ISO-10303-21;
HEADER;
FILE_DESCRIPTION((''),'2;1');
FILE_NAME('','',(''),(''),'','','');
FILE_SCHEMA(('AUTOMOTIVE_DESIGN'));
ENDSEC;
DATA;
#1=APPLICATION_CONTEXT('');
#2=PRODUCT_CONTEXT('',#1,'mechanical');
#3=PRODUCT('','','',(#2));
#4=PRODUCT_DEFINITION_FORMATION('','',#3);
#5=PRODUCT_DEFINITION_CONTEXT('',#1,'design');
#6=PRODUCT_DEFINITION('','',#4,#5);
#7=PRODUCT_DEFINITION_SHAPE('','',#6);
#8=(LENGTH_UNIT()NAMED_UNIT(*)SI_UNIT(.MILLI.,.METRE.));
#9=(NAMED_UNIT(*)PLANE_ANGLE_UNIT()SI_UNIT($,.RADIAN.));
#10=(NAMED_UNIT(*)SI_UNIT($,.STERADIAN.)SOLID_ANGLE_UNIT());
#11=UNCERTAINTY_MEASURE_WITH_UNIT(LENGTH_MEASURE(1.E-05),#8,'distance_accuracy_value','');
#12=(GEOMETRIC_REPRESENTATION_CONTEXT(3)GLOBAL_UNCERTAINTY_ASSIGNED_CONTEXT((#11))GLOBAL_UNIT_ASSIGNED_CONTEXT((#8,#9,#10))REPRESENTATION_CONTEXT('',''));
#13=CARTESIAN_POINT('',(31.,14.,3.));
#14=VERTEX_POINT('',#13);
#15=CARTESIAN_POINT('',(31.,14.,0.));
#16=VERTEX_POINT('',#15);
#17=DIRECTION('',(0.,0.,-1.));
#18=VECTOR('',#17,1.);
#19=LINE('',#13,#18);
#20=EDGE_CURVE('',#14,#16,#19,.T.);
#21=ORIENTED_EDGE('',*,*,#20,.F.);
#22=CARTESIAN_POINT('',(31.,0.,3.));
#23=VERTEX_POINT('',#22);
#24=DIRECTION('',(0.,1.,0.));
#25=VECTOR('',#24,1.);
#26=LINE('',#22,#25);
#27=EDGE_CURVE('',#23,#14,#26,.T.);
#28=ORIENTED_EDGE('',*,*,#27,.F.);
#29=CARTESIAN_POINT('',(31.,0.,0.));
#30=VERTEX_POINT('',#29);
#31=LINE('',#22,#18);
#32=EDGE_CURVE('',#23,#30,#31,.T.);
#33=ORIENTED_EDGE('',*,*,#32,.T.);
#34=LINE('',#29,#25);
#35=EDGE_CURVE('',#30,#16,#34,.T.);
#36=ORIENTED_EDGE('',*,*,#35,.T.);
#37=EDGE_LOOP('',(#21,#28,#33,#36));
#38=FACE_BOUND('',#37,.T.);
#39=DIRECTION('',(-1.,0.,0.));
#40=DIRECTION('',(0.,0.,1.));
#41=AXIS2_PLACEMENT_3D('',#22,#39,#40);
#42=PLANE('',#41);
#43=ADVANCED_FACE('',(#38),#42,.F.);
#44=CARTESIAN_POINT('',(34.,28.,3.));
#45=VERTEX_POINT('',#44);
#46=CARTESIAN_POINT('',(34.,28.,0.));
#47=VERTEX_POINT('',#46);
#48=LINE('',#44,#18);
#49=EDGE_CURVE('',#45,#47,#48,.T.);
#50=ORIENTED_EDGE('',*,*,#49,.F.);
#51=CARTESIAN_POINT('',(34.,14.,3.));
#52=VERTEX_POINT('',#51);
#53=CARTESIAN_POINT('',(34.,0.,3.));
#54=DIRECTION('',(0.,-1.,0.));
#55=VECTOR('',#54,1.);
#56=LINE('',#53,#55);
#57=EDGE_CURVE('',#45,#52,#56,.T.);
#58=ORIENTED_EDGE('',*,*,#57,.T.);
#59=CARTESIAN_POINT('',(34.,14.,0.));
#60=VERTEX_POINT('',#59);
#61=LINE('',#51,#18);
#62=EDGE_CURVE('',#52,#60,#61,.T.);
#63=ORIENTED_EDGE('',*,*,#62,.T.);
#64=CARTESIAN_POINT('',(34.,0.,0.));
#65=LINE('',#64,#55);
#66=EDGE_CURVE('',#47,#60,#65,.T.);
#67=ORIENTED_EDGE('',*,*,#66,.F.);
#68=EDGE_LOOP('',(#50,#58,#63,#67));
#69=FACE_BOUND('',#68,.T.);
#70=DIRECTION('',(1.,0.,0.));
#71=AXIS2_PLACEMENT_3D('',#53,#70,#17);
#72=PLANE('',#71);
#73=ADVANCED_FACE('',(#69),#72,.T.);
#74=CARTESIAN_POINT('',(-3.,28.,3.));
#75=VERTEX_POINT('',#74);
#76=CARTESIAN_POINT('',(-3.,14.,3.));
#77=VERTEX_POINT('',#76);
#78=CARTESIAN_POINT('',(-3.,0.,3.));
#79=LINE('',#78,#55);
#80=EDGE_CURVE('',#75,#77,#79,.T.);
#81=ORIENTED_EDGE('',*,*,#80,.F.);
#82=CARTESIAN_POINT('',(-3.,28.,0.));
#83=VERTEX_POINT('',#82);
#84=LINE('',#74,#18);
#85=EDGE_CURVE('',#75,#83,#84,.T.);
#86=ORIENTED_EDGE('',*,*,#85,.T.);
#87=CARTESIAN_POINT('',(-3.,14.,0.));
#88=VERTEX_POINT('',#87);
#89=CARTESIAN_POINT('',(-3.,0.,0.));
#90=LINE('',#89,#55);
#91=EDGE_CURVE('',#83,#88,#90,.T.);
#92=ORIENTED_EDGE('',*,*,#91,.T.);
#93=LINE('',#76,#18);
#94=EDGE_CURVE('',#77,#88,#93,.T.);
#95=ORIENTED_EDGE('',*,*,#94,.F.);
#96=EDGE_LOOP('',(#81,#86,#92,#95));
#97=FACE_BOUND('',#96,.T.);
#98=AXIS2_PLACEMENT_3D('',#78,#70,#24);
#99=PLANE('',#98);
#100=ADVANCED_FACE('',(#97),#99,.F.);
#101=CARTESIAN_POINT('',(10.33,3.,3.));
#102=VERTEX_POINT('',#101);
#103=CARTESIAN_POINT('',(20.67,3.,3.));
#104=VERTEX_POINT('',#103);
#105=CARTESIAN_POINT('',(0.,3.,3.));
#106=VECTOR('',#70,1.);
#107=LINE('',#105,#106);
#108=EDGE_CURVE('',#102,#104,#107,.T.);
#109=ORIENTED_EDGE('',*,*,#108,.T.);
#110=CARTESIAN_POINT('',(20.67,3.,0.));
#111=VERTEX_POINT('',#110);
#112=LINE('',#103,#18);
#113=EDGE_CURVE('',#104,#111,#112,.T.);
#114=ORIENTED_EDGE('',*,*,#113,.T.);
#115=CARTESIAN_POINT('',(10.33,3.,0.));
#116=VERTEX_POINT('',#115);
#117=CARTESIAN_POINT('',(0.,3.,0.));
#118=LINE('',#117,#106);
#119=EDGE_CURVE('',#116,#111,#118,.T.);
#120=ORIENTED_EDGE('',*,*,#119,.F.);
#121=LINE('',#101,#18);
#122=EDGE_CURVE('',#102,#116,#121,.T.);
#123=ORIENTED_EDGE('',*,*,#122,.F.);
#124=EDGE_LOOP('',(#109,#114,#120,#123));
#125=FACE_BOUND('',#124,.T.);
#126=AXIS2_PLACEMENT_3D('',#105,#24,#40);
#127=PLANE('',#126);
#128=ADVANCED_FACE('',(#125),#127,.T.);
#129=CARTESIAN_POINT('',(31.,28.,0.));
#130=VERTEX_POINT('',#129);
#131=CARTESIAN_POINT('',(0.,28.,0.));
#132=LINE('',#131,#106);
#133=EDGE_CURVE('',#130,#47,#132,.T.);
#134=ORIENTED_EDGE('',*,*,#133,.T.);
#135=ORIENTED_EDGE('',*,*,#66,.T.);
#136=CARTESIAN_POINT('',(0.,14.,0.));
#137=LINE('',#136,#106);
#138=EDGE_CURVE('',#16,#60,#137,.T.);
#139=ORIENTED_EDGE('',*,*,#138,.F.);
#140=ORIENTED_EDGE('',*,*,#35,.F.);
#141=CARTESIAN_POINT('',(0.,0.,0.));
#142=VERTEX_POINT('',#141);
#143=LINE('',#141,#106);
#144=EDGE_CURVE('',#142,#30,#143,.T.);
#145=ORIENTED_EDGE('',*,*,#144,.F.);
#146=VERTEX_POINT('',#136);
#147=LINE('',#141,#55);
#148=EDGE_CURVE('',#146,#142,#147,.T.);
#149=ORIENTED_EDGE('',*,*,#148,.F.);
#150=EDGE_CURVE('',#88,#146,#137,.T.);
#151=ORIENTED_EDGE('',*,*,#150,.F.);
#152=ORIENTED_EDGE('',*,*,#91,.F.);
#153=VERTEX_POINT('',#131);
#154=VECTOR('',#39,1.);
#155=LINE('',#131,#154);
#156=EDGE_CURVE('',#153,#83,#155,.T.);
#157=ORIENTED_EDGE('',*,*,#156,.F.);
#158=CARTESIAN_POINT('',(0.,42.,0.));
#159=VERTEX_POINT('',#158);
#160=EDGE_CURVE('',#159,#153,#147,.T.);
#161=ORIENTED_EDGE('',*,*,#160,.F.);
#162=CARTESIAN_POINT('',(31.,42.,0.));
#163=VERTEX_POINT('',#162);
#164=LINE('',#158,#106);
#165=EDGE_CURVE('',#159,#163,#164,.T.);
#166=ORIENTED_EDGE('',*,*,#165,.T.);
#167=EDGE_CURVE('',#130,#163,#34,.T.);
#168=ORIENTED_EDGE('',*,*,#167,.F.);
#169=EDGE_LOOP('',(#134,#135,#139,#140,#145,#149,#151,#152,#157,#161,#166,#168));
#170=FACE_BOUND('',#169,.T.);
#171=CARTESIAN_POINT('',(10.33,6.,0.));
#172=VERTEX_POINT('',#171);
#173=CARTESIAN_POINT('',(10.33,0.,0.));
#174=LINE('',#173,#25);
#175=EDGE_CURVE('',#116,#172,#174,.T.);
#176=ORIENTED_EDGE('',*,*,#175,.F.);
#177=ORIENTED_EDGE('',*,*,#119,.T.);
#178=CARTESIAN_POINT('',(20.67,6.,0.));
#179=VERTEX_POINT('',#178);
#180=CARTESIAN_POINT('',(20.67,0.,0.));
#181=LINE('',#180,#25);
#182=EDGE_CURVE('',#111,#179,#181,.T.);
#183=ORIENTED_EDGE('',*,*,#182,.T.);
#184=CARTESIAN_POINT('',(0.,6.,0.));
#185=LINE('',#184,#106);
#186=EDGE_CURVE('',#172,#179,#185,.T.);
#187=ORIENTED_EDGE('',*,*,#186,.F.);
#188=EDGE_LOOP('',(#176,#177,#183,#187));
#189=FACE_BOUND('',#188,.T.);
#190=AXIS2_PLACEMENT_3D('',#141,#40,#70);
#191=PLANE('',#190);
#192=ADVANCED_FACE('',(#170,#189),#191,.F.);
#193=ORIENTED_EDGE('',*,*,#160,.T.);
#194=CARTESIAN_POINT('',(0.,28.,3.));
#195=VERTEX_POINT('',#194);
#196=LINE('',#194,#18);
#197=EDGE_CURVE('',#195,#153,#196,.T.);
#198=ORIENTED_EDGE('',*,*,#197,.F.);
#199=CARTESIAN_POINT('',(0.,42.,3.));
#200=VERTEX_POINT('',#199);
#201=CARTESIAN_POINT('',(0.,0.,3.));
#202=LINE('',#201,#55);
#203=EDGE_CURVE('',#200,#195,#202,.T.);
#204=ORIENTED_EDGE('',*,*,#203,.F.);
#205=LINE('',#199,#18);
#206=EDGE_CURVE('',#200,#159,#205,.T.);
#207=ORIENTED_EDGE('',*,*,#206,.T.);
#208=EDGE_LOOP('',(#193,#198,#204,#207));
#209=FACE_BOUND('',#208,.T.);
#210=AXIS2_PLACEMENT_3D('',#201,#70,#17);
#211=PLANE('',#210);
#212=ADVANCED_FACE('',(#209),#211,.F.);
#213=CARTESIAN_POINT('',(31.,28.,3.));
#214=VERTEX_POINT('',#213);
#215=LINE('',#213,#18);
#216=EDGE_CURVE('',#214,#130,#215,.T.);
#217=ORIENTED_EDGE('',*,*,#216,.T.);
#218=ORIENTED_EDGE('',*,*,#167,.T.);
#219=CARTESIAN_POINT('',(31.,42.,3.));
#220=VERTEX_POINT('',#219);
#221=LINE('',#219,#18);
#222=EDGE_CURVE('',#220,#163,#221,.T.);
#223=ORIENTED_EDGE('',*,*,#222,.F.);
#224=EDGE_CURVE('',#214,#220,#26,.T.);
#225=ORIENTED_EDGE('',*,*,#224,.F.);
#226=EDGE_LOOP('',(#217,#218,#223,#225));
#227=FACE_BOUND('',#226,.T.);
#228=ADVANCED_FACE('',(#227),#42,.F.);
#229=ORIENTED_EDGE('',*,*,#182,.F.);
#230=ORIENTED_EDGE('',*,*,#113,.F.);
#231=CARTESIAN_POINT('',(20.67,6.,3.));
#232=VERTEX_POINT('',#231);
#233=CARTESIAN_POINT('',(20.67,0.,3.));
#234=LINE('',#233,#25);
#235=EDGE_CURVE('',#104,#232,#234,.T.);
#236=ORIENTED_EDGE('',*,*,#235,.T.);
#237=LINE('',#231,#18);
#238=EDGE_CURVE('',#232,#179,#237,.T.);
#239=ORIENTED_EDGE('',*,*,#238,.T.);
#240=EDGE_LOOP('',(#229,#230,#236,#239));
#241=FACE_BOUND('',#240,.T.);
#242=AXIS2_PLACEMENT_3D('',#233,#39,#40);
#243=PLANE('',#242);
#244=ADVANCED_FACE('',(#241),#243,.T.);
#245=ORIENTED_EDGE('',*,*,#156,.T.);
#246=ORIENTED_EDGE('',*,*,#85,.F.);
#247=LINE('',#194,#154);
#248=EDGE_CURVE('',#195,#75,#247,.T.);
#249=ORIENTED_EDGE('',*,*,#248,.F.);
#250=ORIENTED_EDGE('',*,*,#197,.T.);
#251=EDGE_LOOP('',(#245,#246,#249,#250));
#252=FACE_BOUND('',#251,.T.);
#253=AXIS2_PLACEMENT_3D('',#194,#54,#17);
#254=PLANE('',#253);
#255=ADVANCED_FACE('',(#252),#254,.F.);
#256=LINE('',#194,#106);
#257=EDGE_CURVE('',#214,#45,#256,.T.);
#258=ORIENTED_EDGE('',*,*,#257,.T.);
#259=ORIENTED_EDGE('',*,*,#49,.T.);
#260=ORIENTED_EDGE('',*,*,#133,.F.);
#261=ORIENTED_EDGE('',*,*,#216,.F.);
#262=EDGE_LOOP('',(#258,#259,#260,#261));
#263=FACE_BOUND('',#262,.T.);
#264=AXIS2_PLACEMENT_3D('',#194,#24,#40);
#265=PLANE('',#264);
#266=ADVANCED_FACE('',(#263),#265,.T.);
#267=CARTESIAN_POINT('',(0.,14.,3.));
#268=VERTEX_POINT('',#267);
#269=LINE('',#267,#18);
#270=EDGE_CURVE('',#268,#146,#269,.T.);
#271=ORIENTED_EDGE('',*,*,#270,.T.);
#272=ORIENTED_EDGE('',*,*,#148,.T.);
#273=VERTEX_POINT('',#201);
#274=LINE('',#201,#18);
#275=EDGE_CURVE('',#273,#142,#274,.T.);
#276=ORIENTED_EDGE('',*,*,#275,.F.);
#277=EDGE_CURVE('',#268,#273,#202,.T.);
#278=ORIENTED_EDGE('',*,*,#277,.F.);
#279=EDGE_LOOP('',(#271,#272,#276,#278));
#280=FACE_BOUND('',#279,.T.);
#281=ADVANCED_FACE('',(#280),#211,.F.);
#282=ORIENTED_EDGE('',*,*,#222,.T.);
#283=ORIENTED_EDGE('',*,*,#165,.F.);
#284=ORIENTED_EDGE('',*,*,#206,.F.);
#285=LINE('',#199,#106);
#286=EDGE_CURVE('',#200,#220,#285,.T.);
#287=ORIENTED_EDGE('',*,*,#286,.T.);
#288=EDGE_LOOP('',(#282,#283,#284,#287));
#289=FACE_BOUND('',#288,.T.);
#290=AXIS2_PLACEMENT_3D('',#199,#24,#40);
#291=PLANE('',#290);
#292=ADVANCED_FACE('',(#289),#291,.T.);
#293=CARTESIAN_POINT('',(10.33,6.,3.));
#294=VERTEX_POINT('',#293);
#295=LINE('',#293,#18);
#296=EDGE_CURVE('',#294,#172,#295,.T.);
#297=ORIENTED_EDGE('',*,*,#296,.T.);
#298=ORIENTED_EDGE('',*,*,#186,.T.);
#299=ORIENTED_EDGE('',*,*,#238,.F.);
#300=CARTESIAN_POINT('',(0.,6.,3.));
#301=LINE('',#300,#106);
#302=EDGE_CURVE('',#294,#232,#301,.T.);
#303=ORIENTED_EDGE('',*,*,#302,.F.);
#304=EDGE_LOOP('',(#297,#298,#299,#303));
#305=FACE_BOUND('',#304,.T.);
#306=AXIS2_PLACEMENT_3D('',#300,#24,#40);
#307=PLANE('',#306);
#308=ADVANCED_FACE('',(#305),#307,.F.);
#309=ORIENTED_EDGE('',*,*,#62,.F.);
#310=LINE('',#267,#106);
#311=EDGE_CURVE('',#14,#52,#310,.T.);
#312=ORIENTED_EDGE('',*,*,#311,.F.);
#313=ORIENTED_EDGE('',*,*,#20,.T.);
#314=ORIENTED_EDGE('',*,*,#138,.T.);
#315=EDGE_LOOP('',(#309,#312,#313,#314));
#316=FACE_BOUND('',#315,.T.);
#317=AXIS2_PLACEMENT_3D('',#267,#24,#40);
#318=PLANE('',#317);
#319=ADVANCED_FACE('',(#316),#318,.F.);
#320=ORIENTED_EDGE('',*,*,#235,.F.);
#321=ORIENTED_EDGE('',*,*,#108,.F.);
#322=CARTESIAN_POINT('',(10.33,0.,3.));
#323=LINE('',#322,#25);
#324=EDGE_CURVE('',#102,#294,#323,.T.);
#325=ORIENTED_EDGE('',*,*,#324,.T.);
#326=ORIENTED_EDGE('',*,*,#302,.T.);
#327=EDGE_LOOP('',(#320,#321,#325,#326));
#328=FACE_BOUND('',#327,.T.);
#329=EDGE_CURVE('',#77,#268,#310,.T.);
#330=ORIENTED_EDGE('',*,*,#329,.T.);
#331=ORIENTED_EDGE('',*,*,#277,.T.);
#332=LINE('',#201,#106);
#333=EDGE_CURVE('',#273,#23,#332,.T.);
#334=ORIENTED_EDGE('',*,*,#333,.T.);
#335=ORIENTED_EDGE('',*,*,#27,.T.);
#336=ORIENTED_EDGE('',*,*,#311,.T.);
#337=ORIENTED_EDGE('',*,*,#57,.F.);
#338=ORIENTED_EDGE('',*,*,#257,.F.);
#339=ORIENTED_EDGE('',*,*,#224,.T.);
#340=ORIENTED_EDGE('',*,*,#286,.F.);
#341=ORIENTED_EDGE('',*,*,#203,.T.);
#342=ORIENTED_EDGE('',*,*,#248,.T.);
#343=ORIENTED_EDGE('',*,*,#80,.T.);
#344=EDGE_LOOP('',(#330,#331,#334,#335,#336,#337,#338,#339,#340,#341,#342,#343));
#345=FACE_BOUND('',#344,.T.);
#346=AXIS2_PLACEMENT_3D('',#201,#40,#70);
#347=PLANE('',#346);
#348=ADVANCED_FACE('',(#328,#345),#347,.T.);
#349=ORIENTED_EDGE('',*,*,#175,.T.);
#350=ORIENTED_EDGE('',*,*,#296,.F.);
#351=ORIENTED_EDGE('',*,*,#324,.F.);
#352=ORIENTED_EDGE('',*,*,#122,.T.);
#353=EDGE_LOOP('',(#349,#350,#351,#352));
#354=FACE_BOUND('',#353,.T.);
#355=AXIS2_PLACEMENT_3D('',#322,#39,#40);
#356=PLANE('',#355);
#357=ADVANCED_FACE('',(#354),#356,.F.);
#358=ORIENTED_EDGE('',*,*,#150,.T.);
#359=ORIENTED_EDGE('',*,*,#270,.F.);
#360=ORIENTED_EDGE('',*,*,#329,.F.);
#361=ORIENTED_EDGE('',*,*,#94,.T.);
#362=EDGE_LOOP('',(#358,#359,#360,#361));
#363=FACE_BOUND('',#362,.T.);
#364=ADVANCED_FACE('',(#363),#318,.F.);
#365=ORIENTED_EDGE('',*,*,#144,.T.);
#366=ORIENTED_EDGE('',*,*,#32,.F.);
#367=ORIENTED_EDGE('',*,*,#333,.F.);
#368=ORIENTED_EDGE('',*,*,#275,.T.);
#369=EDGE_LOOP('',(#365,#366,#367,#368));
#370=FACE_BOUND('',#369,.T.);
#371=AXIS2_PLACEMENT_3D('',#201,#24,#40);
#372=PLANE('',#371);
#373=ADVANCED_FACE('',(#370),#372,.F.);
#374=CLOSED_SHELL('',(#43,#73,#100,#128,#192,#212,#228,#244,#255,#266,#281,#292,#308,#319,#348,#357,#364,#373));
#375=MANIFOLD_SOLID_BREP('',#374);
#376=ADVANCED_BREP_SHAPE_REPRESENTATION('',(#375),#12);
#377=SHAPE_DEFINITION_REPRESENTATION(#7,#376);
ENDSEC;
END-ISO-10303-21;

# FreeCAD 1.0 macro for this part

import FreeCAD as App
import Part
import Sketcher
Q = App.Units.Quantity


def add_polygon(sketch, points):
    """Adds a closed chain of lines whose ends are joined by coincident constraints."""
    first, n = sketch.GeometryCount, len(points)
    for a, b in zip(points, points[1:] + points[:1]):
        sketch.addGeometry(Part.LineSegment(App.Vector(*a, 0), App.Vector(*b, 0)), False)
    for i in range(n):
        sketch.addConstraint(Sketcher.Constraint("Coincident", first + i, 2, first + (i + 1) % n, 1))

doc = App.newDocument("Part")
body = doc.addObject("PartDesign::Body", "Body")

sketch1 = doc.addObject("Sketcher::SketchObject", "Sketch")
body.addObject(sketch1)
sketch1.AttachmentSupport = (doc.XY_Plane, [""])
sketch1.MapMode = "FlatFace"
add_polygon(sketch1, [(0, 14), (0, 0), (31, 0), (31, 14), (34, 14), (34, 28), (31, 28), (31, 42), (0, 42), (0, 28), (-3, 28), (-3, 14)])
add_polygon(sketch1, [(20.7, 3), (10.3, 3), (10.3, 6), (20.7, 6)])
sketch1.addConstraint(Sketcher.Constraint("Vertical", 0))
sketch1.addConstraint(Sketcher.Constraint("Horizontal", 1))
sketch1.addConstraint(Sketcher.Constraint("Vertical", 2))
sketch1.addConstraint(Sketcher.Constraint("Horizontal", 3))
sketch1.addConstraint(Sketcher.Constraint("Vertical", 4))
sketch1.addConstraint(Sketcher.Constraint("Horizontal", 5))
sketch1.addConstraint(Sketcher.Constraint("Vertical", 6))
sketch1.addConstraint(Sketcher.Constraint("Horizontal", 7))
sketch1.addConstraint(Sketcher.Constraint("Vertical", 8))
sketch1.addConstraint(Sketcher.Constraint("Horizontal", 9))
sketch1.addConstraint(Sketcher.Constraint("Vertical", 10))
sketch1.addConstraint(Sketcher.Constraint("Horizontal", 11))
sketch1.addConstraint(Sketcher.Constraint("Horizontal", 12))
sketch1.addConstraint(Sketcher.Constraint("Vertical", 13))
sketch1.addConstraint(Sketcher.Constraint("Horizontal", 14))
sketch1.addConstraint(Sketcher.Constraint("Vertical", 15))
sketch1.addConstraint(Sketcher.Constraint("Coincident", 0, 2, -1, 1))
sketch1.addConstraint(Sketcher.Constraint("PointOnObject", 7, 2, -2))
sketch1.addConstraint(Sketcher.Constraint("Horizontal", 5, 2, 8, 2))
sketch1.addConstraint(Sketcher.Constraint("Horizontal", 3, 2, 10, 2))
sketch1.addConstraint(Sketcher.Constraint("Vertical", 2, 2, 5, 2))
sketch1.addConstraint(Sketcher.Constraint("Equal", 5, 9))
sketch1.addConstraint(Sketcher.Constraint("Equal", 2, 4))
sketch1.addConstraint(Sketcher.Constraint("Equal", 4, 6))
sketch1.addConstraint(Sketcher.Constraint("Equal", 11, 13))
sketch1.addConstraint(Sketcher.Constraint("DistanceX", 1, 1, 1, 2, Q("31 mm")))
sketch1.addConstraint(Sketcher.Constraint("DistanceX", 3, 1, 3, 2, Q("3 mm")))
sketch1.addConstraint(Sketcher.Constraint("DistanceY", 0, 2, 0, 1, Q("14 mm")))
sketch1.addConstraint(Sketcher.Constraint("DistanceY", -1, 1, 12, 2, Q("3 mm")))
sketch1.addConstraint(Sketcher.Constraint("DistanceX", 12, 2, 12, 1, Q("10.34 mm")))
sketch1.addConstraint(Sketcher.Constraint("DistanceX", -1, 1, 12, 2, Q("10.33 mm")))
pad1 = doc.addObject("PartDesign::Pad", "Pad")
body.addObject(pad1)
pad1.Profile = sketch1
pad1.Length = 3

doc.recompute()
